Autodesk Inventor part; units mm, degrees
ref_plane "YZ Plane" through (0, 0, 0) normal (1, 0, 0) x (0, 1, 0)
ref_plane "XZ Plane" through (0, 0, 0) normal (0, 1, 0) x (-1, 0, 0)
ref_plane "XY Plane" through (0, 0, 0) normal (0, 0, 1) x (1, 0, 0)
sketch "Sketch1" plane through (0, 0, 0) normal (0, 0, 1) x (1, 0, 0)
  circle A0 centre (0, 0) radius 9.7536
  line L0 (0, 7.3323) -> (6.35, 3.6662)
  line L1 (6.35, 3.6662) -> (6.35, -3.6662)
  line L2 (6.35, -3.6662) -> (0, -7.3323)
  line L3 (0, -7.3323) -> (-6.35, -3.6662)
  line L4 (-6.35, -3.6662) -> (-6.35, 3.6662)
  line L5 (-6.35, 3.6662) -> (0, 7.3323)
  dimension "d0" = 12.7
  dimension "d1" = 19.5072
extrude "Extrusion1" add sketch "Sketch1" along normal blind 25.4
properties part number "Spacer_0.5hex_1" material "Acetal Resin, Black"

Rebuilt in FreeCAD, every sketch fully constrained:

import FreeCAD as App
import Part
import Sketcher
from FreeCAD import Vector
Q = App.Units.Quantity

doc = App.newDocument("Part")
body = doc.addObject("PartDesign::Body", "Body")

# Sketch on XY plane
sketch1 = doc.addObject("Sketcher::SketchObject", "Sketch")
body.addObject(sketch1)
sketch1.AttachmentSupport = (doc.XY_Plane, [""])
sketch1.MapMode = "FlatFace"
sketch1.addGeometry(Part.Circle(Vector(0, 0, 0), Vector(0, 0, 1), 10), False)
sketch1.addGeometry(Part.LineSegment(Vector(-6, 4, 0), Vector(0, 7, 0)), False)
sketch1.addGeometry(Part.LineSegment(Vector(0, 7, 0), Vector(6, 4, 0)), False)
sketch1.addGeometry(Part.LineSegment(Vector(6, 4, 0), Vector(6, -4, 0)), False)
sketch1.addGeometry(Part.LineSegment(Vector(6, -4, 0), Vector(0, -7, 0)), False)
sketch1.addGeometry(Part.LineSegment(Vector(0, -7, 0), Vector(-6, -4, 0)), False)
sketch1.addGeometry(Part.LineSegment(Vector(-6, -4, 0), Vector(-6, 4, 0)), False)
sketch1.addConstraint(Sketcher.Constraint("Coincident", 1, 2, 2, 1))
sketch1.addConstraint(Sketcher.Constraint("Coincident", 2, 2, 3, 1))
sketch1.addConstraint(Sketcher.Constraint("Coincident", 3, 2, 4, 1))
sketch1.addConstraint(Sketcher.Constraint("Coincident", 4, 2, 5, 1))
sketch1.addConstraint(Sketcher.Constraint("Coincident", 5, 2, 6, 1))
sketch1.addConstraint(Sketcher.Constraint("Coincident", 6, 2, 1, 1))
sketch1.addConstraint(Sketcher.Constraint("Vertical", 3))
sketch1.addConstraint(Sketcher.Constraint("Vertical", 6))
sketch1.addConstraint(Sketcher.Constraint("Coincident", 0, 3, -1, 1))
sketch1.addConstraint(Sketcher.Constraint("Symmetric", 1, 2, 4, 2, -1, 1))
sketch1.addConstraint(Sketcher.Constraint("Symmetric", 2, 2, 5, 2, -1, 1))
sketch1.addConstraint(Sketcher.Constraint("PointOnObject", 1, 2, -2))
sketch1.addConstraint(Sketcher.Constraint("Parallel", 1, 4))
sketch1.addConstraint(Sketcher.Constraint("Horizontal", 3, 2, 5, 2))
sketch1.addConstraint(Sketcher.Constraint("Diameter", 0, Q("0.768 in")))
sketch1.addConstraint(Sketcher.Constraint("DistanceX", 5, 2, 3, 2, Q("0.5 in")))
sketch1.addConstraint(Sketcher.Constraint("Angle", 1, Q("29.9995 deg")))
sketch1.addConstraint(Sketcher.Constraint("DistanceY", 3, 2, 1, 2, Q("0.433 in")))
pad1 = doc.addObject("PartDesign::Pad", "Pad")
body.addObject(pad1)
pad1.Profile = sketch1
pad1.Length = Q("1 in")

doc.recompute()
